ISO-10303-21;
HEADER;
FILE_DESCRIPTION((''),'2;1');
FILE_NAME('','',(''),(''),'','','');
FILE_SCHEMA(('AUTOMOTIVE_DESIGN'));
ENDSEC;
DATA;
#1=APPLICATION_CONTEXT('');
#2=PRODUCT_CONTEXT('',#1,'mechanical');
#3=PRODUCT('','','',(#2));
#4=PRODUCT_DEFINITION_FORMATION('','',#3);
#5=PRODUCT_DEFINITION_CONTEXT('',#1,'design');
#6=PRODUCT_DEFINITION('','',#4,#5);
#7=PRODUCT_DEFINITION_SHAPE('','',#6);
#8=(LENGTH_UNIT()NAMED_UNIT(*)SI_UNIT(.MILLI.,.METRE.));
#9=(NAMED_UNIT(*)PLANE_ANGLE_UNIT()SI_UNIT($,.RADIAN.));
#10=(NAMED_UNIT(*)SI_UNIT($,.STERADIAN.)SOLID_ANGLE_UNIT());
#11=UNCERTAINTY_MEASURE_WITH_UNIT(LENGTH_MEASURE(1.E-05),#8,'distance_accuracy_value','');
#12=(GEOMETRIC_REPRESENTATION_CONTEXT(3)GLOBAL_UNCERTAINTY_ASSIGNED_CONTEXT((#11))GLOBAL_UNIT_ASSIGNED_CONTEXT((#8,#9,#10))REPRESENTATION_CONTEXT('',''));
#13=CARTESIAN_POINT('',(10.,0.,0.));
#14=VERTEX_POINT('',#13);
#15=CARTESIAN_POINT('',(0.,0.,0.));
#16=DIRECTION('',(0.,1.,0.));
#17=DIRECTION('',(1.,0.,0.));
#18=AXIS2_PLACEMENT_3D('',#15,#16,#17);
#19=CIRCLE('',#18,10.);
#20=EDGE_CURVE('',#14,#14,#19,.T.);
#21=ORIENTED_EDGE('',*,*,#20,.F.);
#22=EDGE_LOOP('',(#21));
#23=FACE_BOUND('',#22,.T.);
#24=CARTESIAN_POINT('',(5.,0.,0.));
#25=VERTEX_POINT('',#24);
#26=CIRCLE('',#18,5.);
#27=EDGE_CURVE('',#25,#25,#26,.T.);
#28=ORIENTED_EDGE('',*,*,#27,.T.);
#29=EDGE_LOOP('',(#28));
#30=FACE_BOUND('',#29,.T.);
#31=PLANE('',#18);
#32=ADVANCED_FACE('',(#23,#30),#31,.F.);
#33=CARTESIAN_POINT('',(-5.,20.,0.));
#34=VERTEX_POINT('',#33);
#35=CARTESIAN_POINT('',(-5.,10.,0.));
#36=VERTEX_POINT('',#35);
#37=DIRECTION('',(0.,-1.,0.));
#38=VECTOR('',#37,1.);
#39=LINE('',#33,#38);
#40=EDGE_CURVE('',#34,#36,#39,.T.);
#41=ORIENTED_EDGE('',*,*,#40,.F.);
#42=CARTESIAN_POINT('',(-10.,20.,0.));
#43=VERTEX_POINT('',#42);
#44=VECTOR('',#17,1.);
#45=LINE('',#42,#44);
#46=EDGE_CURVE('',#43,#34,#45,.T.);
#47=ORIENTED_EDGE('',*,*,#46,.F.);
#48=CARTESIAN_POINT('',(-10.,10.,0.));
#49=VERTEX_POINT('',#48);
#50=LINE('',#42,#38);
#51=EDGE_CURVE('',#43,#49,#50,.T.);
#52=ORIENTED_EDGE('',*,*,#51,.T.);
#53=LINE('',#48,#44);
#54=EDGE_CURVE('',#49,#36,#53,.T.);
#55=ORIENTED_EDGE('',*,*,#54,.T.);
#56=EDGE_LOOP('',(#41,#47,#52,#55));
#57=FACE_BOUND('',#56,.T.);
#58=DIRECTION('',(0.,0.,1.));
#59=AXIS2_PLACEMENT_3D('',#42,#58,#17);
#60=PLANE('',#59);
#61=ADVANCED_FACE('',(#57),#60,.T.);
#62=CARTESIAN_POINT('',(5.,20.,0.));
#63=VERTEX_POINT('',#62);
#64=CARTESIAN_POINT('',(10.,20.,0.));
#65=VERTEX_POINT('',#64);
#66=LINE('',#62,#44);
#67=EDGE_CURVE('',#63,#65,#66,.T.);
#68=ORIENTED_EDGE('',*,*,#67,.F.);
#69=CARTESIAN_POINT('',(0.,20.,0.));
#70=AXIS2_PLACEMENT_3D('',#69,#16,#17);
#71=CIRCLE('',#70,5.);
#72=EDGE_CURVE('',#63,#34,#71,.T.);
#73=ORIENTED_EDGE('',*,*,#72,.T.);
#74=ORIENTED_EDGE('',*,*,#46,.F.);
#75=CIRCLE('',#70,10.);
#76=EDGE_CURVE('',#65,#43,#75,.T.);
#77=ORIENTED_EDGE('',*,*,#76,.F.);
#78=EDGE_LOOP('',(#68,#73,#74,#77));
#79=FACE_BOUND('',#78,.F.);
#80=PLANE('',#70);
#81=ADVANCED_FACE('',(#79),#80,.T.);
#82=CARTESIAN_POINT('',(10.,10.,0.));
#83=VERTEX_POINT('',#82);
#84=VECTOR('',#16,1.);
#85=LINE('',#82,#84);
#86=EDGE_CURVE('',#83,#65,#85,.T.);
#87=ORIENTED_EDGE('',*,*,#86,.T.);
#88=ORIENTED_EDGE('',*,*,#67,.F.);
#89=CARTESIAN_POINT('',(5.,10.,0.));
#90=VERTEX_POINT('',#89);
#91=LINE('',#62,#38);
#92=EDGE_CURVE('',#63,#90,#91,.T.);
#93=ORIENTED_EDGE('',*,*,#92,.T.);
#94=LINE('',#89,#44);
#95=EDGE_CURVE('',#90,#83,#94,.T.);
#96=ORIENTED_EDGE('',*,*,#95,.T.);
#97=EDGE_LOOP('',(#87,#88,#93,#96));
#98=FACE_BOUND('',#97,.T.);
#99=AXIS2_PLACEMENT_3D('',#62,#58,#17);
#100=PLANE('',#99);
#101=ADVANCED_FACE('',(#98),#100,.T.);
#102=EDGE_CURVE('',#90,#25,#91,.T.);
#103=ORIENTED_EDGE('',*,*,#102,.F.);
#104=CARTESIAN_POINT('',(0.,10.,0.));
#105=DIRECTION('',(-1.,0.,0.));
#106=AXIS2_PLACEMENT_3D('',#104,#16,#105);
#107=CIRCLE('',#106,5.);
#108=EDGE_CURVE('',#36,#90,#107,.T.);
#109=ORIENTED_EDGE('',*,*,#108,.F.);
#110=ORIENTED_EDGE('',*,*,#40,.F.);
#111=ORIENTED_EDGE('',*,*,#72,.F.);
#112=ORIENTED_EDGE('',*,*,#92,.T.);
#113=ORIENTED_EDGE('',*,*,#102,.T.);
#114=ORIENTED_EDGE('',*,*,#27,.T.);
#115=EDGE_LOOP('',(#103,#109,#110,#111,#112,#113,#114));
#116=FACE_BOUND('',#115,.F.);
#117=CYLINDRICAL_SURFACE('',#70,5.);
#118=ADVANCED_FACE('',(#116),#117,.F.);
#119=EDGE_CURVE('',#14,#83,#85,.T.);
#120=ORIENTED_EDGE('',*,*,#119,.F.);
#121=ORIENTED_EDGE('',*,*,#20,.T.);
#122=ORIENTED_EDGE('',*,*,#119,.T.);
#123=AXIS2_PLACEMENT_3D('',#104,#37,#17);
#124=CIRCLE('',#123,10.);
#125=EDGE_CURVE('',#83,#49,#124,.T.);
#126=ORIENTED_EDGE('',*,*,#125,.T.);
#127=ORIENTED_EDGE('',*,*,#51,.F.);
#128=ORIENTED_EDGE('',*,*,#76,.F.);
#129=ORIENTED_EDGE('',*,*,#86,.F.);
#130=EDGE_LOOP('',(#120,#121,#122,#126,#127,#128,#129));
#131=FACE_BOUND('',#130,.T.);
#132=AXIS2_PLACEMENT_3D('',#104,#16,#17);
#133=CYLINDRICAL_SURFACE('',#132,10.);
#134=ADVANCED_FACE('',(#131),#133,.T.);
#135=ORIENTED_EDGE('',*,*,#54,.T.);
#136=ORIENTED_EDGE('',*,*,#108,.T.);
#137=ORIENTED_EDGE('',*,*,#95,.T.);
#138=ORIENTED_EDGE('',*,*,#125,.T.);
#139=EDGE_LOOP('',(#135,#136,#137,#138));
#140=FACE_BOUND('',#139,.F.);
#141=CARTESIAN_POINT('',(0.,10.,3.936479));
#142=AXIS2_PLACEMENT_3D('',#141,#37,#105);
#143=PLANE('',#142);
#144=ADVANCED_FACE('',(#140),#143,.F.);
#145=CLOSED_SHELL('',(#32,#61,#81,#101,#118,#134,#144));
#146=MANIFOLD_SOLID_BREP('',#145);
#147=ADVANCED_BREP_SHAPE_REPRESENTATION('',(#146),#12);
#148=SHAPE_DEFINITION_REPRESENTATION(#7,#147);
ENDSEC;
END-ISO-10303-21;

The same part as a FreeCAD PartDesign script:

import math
import FreeCAD as App
import Part
import Sketcher

V = App.Vector
Q = App.Units.Quantity

doc = App.newDocument("Part")
params = doc.addObject("Spreadsheet::Sheet", "Params")
for row, (alias, value) in enumerate([
    ("sketch1_width", "10 mm"),
    ("sketch1_height", "20 mm"),
    ("revolution_angle", "360 deg"),
    ("sketch2_diameter", "10 mm"),
    ("pocket1_length", "20 mm"),
    ("sketch3_radius", "10 mm"),
    ("sketch3_radius2", "5 mm"),
    ("pocket2_length", "10 mm"),
], start=1):
    params.set(f"A{row}", alias)
    params.set(f"B{row}", "=" + value)
    params.setAlias(f"B{row}", alias)

body = doc.addObject("PartDesign::Body", "Body")

sketch1 = body.newObject("Sketcher::SketchObject", "Sketch")
sketch1.AttachmentSupport = (doc.getObject("XY_Plane"), [""])
sketch1.MapMode = "FlatFace"
sketch1.addGeometry([
    Part.LineSegment(V(0, 20, 0), V(0, 0, 0)),
    Part.LineSegment(V(0, 0, 0), V(10, 0, 0)),
    Part.LineSegment(V(10, 0, 0), V(10, 20, 0)),
    Part.LineSegment(V(10, 20, 0), V(0, 20, 0)),
], False)
sketch1.addConstraint([
    Sketcher.Constraint("Coincident", 0, 2, 1, 1),
    Sketcher.Constraint("Coincident", 1, 2, 2, 1),
    Sketcher.Constraint("Coincident", 2, 2, 3, 1),
    Sketcher.Constraint("Coincident", 3, 2, 0, 1),
    Sketcher.Constraint("Vertical", 0),
    Sketcher.Constraint("Horizontal", 1),
    Sketcher.Constraint("Vertical", 2),
    Sketcher.Constraint("Horizontal", 3),
    Sketcher.Constraint("Coincident", 0, 2, -1, 1),
    Sketcher.Constraint("DistanceX", 1, 1, 1, 2, Q("10 mm")),
    Sketcher.Constraint("DistanceY", 0, 2, 0, 1, Q("20 mm")),
])
sketch1.setExpression("Constraints[9]", "Params.sketch1_width")
sketch1.setExpression("Constraints[10]", "Params.sketch1_height")
revolution = body.newObject("PartDesign::Revolution", "Revolution")
revolution.Profile = sketch1
revolution.ReferenceAxis = (sketch1, ["V_Axis"])
revolution.setExpression("Angle", "Params.revolution_angle")

sketch2 = body.newObject("Sketcher::SketchObject", "Sketch001")
sketch2.AttachmentSupport = (doc.getObject("XZ_Plane"), [""])
sketch2.MapMode = "FlatFace"
sketch2.AttachmentOffset = App.Placement(V(0, 0, -20), App.Rotation())
sketch2.addGeometry(Part.Circle(V(0, 0, 0), V(0, 0, 1), 5), False)
sketch2.addConstraint([
    Sketcher.Constraint("Coincident", 0, 3, -1, 1),
    Sketcher.Constraint("Diameter", 0, Q("10 mm")),
])
sketch2.setExpression("Constraints[1]", "Params.sketch2_diameter")
pocket1 = body.newObject("PartDesign::Pocket", "Pocket")
pocket1.Profile = sketch2
pocket1.setExpression("Length", "Params.pocket1_length")
pocket1.Reversed = True

sketch3 = body.newObject("Sketcher::SketchObject", "Sketch002")
sketch3.AttachmentSupport = (doc.getObject("XZ_Plane"), [""])
sketch3.MapMode = "FlatFace"
sketch3.AttachmentOffset = App.Placement(V(0, 0, -20), App.Rotation())
sketch3.addGeometry([
    Part.LineSegment(V(-5, 0, 0), V(-10, 0, 0)),
    Part.ArcOfCircle(Part.Circle(V(0, 0, 0), V(0, 0, 1), 10), math.radians(0), math.radians(180)),
    Part.LineSegment(V(10, 0, 0), V(5, 0, 0)),
    Part.ArcOfCircle(Part.Circle(V(0, 0, 0), V(0, 0, 1), 5), math.radians(0), math.radians(180)),
], False)
sketch3.addConstraint([
    Sketcher.Constraint("Coincident", 0, 2, 1, 2),
    Sketcher.Constraint("Coincident", 1, 1, 2, 1),
    Sketcher.Constraint("Coincident", 2, 2, 3, 1),
    Sketcher.Constraint("Coincident", 3, 2, 0, 1),
    Sketcher.Constraint("Horizontal", 0),
    Sketcher.Constraint("Horizontal", 2),
    Sketcher.Constraint("Coincident", 1, 3, -1, 1),
    Sketcher.Constraint("Coincident", 3, 3, -1, 1),
    Sketcher.Constraint("PointOnObject", 0, 2, -1),
    Sketcher.Constraint("PointOnObject", 1, 1, -1),
    Sketcher.Constraint("Radius", 1, Q("10 mm")),
    Sketcher.Constraint("Radius", 3, Q("5 mm")),
])
sketch3.setExpression("Constraints[10]", "Params.sketch3_radius")
sketch3.setExpression("Constraints[11]", "Params.sketch3_radius2")
pocket2 = body.newObject("PartDesign::Pocket", "Pocket001")
pocket2.Profile = sketch3
pocket2.setExpression("Length", "Params.pocket2_length")
pocket2.Reversed = True

doc.recompute()
